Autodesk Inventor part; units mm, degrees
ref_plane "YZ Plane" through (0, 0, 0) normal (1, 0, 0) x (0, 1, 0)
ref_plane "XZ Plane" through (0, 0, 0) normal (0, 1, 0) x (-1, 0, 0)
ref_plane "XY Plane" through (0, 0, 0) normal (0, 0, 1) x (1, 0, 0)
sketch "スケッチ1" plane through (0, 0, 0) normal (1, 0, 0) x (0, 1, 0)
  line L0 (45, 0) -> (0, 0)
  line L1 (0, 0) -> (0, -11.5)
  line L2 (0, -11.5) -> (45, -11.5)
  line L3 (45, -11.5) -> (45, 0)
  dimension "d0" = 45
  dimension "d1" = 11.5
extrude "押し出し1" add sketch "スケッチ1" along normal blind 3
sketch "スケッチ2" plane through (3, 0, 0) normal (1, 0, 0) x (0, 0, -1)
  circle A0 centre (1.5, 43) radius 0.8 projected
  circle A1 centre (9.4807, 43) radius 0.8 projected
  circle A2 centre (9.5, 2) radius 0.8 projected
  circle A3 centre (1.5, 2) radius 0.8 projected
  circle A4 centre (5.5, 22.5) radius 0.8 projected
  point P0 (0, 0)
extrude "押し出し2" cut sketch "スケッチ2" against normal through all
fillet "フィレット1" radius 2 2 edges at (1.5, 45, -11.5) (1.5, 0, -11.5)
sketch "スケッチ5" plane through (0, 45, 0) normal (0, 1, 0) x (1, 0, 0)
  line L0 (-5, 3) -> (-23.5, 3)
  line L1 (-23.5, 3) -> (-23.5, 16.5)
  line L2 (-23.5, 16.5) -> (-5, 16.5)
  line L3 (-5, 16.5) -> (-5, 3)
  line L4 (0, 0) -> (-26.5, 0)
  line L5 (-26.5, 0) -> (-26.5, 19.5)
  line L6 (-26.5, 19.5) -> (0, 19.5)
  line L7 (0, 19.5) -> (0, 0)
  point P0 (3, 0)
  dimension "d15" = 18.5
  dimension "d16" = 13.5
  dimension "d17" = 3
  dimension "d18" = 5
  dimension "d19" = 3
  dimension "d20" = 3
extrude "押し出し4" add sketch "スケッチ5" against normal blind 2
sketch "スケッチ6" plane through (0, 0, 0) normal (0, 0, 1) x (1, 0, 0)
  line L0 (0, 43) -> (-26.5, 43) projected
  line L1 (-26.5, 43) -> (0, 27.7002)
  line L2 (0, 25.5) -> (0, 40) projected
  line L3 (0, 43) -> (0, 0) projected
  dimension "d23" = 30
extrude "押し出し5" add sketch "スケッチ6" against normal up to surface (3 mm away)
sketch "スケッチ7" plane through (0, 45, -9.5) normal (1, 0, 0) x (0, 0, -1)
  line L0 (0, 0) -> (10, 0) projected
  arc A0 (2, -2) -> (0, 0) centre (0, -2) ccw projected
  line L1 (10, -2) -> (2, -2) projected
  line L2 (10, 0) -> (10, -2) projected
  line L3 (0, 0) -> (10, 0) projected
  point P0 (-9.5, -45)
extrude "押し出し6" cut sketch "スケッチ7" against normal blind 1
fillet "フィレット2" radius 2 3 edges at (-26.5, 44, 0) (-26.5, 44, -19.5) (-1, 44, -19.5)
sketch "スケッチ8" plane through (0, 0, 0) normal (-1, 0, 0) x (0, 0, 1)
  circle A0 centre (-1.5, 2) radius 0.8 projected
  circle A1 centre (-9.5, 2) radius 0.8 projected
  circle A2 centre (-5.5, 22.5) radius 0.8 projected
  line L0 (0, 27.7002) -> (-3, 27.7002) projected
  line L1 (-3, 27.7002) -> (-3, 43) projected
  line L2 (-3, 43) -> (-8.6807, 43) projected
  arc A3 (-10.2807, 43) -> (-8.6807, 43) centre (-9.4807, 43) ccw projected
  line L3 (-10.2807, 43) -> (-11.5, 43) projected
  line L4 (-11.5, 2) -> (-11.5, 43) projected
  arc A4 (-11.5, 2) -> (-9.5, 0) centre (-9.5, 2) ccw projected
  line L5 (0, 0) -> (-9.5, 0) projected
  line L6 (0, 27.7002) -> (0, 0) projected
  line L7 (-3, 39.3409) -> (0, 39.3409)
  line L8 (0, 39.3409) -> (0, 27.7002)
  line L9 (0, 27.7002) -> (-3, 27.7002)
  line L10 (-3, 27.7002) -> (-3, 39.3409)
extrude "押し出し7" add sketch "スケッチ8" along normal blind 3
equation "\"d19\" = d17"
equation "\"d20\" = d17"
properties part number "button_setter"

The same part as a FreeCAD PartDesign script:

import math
import FreeCAD as App
import Part
import Sketcher

V = App.Vector
Q = App.Units.Quantity


def edges_at(feature, points):
    """Names of the edges that pass closest to the given points."""
    edges = feature.Shape.Edges
    near = lambda p: min(range(len(edges)), key=lambda i: edges[i].distToShape(Part.Vertex(*p))[0])
    return sorted({f"Edge{near(p) + 1}" for p in points})


def add_polygon(sketch, points):
    """Adds a closed chain of lines whose ends are joined by coincident constraints."""
    first, n = sketch.GeometryCount, len(points)
    for a, b in zip(points, points[1:] + points[:1]):
        sketch.addGeometry(Part.LineSegment(App.Vector(*a, 0), App.Vector(*b, 0)), False)
    for i in range(n):
        sketch.addConstraint(Sketcher.Constraint("Coincident", first + i, 2, first + (i + 1) % n, 1))

doc = App.newDocument("Part")
body = doc.addObject("PartDesign::Body", "Body")

# Sketch on YZ plane
sketch1 = body.newObject("Sketcher::SketchObject", "Sketch")
sketch1.AttachmentSupport = (doc.getObject("YZ_Plane"), [""])
sketch1.MapMode = "FlatFace"
add_polygon(sketch1, [(45, -12), (45, 0), (0, 0), (0, -12)])  # lines 0-3
sketch1.addConstraint([
    Sketcher.Constraint("Vertical", 0),
    Sketcher.Constraint("Horizontal", 1),
    Sketcher.Constraint("Vertical", 2),
    Sketcher.Constraint("Horizontal", 3),
    Sketcher.Constraint("Coincident", 1, 2, -1, 1),
    Sketcher.Constraint("DistanceX", 1, 2, 1, 1, 45.0),
    Sketcher.Constraint("DistanceY", 0, 1, 0, 2, 11.5),
])
pad1 = body.newObject("PartDesign::Pad", "Pad")
pad1.Profile = sketch1
pad1.Length = 3

# Sketch on YZ plane
sketch2 = body.newObject("Sketcher::SketchObject", "Sketch001")
sketch2.AttachmentSupport = (doc.getObject("YZ_Plane"), [""])
sketch2.MapMode = "FlatFace"
sketch2.AttachmentOffset = App.Placement(V(0, 0, 3), App.Rotation())
sketch2.addGeometry([
    Part.Circle(V(43, -1.5, 0), V(0, 0, 1), 0.8),  # 0
    Part.Circle(V(43, -9.5, 0), V(0, 0, 1), 0.8),  # 1
    Part.Circle(V(2, -9.5, 0), V(0, 0, 1), 0.8),  # 2
    Part.Circle(V(2, -1.5, 0), V(0, 0, 1), 0.8),  # 3
    Part.Circle(V(22.5, -5.5, 0), V(0, 0, 1), 0.8),  # 4
], False)
sketch2.addConstraint([
    Sketcher.Constraint("Equal", 0, 1),
    Sketcher.Constraint("Equal", 1, 2),
    Sketcher.Constraint("Equal", 2, 3),
    Sketcher.Constraint("Equal", 3, 4),
    Sketcher.Constraint("Horizontal", 0, 3, 3, 3),
    Sketcher.Constraint("Vertical", 0, 3, 1, 3),
    Sketcher.Constraint("Vertical", 2, 3, 3, 3),
    Sketcher.Constraint("Diameter", 0, 1.6),
    Sketcher.Constraint("DistanceX", -1, 1, 0, 3, 43.0),
    Sketcher.Constraint("DistanceX", -1, 1, 2, 3, 2.0),
    Sketcher.Constraint("DistanceY", 2, 3, 0, 3, 8.0),
    Sketcher.Constraint("DistanceY", 4, 3, 0, 3, 4.0),
    Sketcher.Constraint("DistanceY", 0, 3, -1, 1, 1.5),
    Sketcher.Constraint("DistanceX", -1, 1, 4, 3, 22.5),
    Sketcher.Constraint("DistanceY", 1, 3, -1, 1, 9.4807),
])
pocket1 = body.newObject("PartDesign::Pocket", "Pocket")
pocket1.Profile = sketch2
pocket1.Type = "ThroughAll"
doc.recompute()

fillet = body.newObject("PartDesign::Fillet", "Fillet")
fillet.Base = (pocket1, edges_at(pocket1, [(1.5, 45, -11.5), (1.5, 0, -11.5)]))
fillet.Radius = 2

# Sketch on XZ plane
sketch3 = body.newObject("Sketcher::SketchObject", "Sketch002")
sketch3.AttachmentSupport = (doc.getObject("XZ_Plane"), [""])
sketch3.MapMode = "FlatFace"
sketch3.AttachmentOffset = App.Placement(V(0, 0, -45), App.Rotation())
add_polygon(sketch3, [(-26, 0), (0, 0), (0, -20), (-26, -20)])  # lines 0-3
add_polygon(sketch3, [(-5, -16), (-5, -3), (-24, -3), (-24, -16)])  # lines 4-7
sketch3.addConstraint([
    Sketcher.Constraint("Horizontal", 0),
    Sketcher.Constraint("Vertical", 1),
    Sketcher.Constraint("Horizontal", 2),
    Sketcher.Constraint("Vertical", 3),
    Sketcher.Constraint("Vertical", 4),
    Sketcher.Constraint("Horizontal", 5),
    Sketcher.Constraint("Vertical", 6),
    Sketcher.Constraint("Horizontal", 7),
    Sketcher.Constraint("Coincident", 0, 2, -1, 1),
    Sketcher.Constraint("DistanceX", 5, 2, 5, 1, 18.5),
    Sketcher.Constraint("DistanceY", 4, 1, 4, 2, 13.5),
    Sketcher.Constraint("DistanceX", 4, 2, -1, 1, 5.0),
    Sketcher.Constraint("DistanceY", 4, 2, -1, 1, 3.0),
    Sketcher.Constraint("DistanceX", 3, 2, 5, 2, 3.0),
    Sketcher.Constraint("DistanceY", 2, 2, 6, 2, 3.0),
])
pad2 = body.newObject("PartDesign::Pad", "Pad001")
pad2.Profile = sketch3
pad2.Length = 2

# Sketch on XY plane
sketch4 = body.newObject("Sketcher::SketchObject", "Sketch003")
sketch4.AttachmentSupport = (doc.getObject("XY_Plane"), [""])
sketch4.MapMode = "FlatFace"
add_polygon(sketch4, [(0, 28), (0, 43), (-26, 43)])  # lines 0-2
sketch4.addConstraint([
    Sketcher.Constraint("Vertical", 0),
    Sketcher.Constraint("Horizontal", 1),
    Sketcher.Constraint("PointOnObject", 0, 2, -2),
    Sketcher.Constraint("Angle", 2, Q("-30 deg")),
    Sketcher.Constraint("DistanceX", 1, 2, 1, 1, 26.5),
    Sketcher.Constraint("DistanceY", -1, 1, 0, 2, 43.0),
])
pad3 = body.newObject("PartDesign::Pad", "Pad002")
pad3.Profile = sketch4
pad3.Length = 3
pad3.Reversed = True

# Sketch on YZ plane
sketch5 = body.newObject("Sketcher::SketchObject", "Sketch004")
sketch5.AttachmentSupport = (doc.getObject("YZ_Plane"), [""])
sketch5.MapMode = "FlatFace"
sketch5.addGeometry([
    Part.LineSegment(V(45, -19.5, 0), V(45, -9.5, 0)),
    Part.ArcOfCircle(Part.Circle(V(43, -9.5, 0), V(0, 0, 1), 2), math.radians(-90), math.radians(0)),
    Part.LineSegment(V(43, -11.5, 0), V(43, -19.5, 0)),
    Part.LineSegment(V(43, -19.5, 0), V(45, -19.5, 0)),
], False)
sketch5.addConstraint([
    Sketcher.Constraint("Tangent", 0, 2, 1, 2),
    Sketcher.Constraint("Coincident", 1, 1, 2, 1),
    Sketcher.Constraint("Coincident", 2, 2, 3, 1),
    Sketcher.Constraint("Coincident", 3, 2, 0, 1),
    Sketcher.Constraint("Vertical", 0),
    Sketcher.Constraint("Vertical", 2),
    Sketcher.Constraint("Horizontal", 3),
    Sketcher.Constraint("Radius", 1, 2.0),
    Sketcher.Constraint("DistanceX", 3, 1, 3, 2, 2.0),
    Sketcher.Constraint("DistanceY", 0, 1, 0, 2, 10.0),
    Sketcher.Constraint("DistanceX", -1, 1, 1, 3, 43.0),
    Sketcher.Constraint("DistanceY", 1, 3, -1, 1, 9.5),
])
pocket2 = body.newObject("PartDesign::Pocket", "Pocket001")
pocket2.Profile = sketch5
pocket2.Length = 1
doc.recompute()

fillet2 = body.newObject("PartDesign::Fillet", "Fillet001")
fillet2.Base = (pocket2, edges_at(pocket2, [(-26.5, 44, 0), (-26.5, 44, -19.5), (-1, 44, -19.5)]))
fillet2.Radius = 2

# Sketch on YZ plane
sketch6 = body.newObject("Sketcher::SketchObject", "Sketch005")
sketch6.AttachmentSupport = (doc.getObject("YZ_Plane"), [""])
sketch6.MapMode = "FlatFace"
sketch6.addGeometry([
    Part.LineSegment(V(0, 0, 0), V(39.3, 0, 0)),  # 0
    Part.LineSegment(V(39.3, 0, 0), V(39.3, -3, 0)),  # 1
    Part.LineSegment(V(39.3, -3, 0), V(43, -3, 0)),  # 2
    Part.LineSegment(V(43, -3, 0), V(43, -8.7, 0)),  # 3
    Part.ArcOfCircle(Part.Circle(V(43, -9.5, 0), V(0, 0, 1), 0.8), math.radians(90), math.radians(270)),  # 4
    Part.LineSegment(V(43, -10.3, 0), V(43, -11.5, 0)),  # 5
    Part.LineSegment(V(43, -11.5, 0), V(2, -11.5, 0)),  # 6
    Part.ArcOfCircle(Part.Circle(V(2, -9.5, 0), V(0, 0, 1), 2), math.radians(180), math.radians(270)),  # 7
    Part.LineSegment(V(0, -9.5, 0), V(0, 0, 0)),  # 8
    Part.Circle(V(2, -9.5, 0), V(0, 0, 1), 0.8),  # 9
    Part.Circle(V(2, -1.5, 0), V(0, 0, 1), 0.8),  # 10
    Part.Circle(V(22.5, -5.5, 0), V(0, 0, 1), 0.8),  # 11
], False)
sketch6.addConstraint([
    Sketcher.Constraint("Coincident", 0, 2, 1, 1),
    Sketcher.Constraint("Coincident", 1, 2, 2, 1),
    Sketcher.Constraint("Coincident", 2, 2, 3, 1),
    Sketcher.Constraint("Coincident", 3, 2, 4, 1),
    Sketcher.Constraint("Coincident", 4, 2, 5, 1),
    Sketcher.Constraint("Coincident", 5, 2, 6, 1),
    Sketcher.Constraint("Tangent", 6, 2, 7, 2),
    Sketcher.Constraint("Tangent", 7, 1, 8, 1),
    Sketcher.Constraint("Coincident", 8, 2, 0, 1),
    Sketcher.Constraint("Horizontal", 0),
    Sketcher.Constraint("Vertical", 1),
    Sketcher.Constraint("Horizontal", 2),
    Sketcher.Constraint("Vertical", 3),
    Sketcher.Constraint("Vertical", 5),
    Sketcher.Constraint("Horizontal", 6),
    Sketcher.Constraint("Vertical", 8),
    Sketcher.Constraint("Coincident", 8, 2, -1, 1),
    Sketcher.Constraint("Coincident", 9, 3, 7, 3),
    Sketcher.Constraint("Equal", 4, 9),
    Sketcher.Constraint("Equal", 9, 10),
    Sketcher.Constraint("Equal", 10, 11),
    Sketcher.Constraint("Vertical", 9, 3, 10, 3),
    Sketcher.Constraint("Vertical", 4, 3, 2, 2),
    Sketcher.Constraint("Vertical", 3, 2, 4, 2),
    Sketcher.Constraint("Radius", 7, 2.0),
    Sketcher.Constraint("Diameter", 9, 1.6),
    Sketcher.Constraint("DistanceX", 6, 2, 6, 1, 41.0),
    Sketcher.Constraint("DistanceY", 1, 2, 1, 1, 3.0),
    Sketcher.Constraint("DistanceY", 8, 1, 8, 2, 9.5),
    Sketcher.Constraint("DistanceY", 7, 3, 10, 3, 8.0),
    Sketcher.Constraint("DistanceY", 7, 3, 11, 3, 4.0),
    Sketcher.Constraint("DistanceX", -1, 1, 11, 3, 22.5),
    Sketcher.Constraint("DistanceX", 0, 1, 0, 2, 39.341),
    Sketcher.Constraint("DistanceY", 3, 2, 3, 1, 5.6807),
])
pad4 = body.newObject("PartDesign::Pad", "Pad003")
pad4.Profile = sketch6
pad4.Length = 3
pad4.Reversed = True

doc.recompute()
